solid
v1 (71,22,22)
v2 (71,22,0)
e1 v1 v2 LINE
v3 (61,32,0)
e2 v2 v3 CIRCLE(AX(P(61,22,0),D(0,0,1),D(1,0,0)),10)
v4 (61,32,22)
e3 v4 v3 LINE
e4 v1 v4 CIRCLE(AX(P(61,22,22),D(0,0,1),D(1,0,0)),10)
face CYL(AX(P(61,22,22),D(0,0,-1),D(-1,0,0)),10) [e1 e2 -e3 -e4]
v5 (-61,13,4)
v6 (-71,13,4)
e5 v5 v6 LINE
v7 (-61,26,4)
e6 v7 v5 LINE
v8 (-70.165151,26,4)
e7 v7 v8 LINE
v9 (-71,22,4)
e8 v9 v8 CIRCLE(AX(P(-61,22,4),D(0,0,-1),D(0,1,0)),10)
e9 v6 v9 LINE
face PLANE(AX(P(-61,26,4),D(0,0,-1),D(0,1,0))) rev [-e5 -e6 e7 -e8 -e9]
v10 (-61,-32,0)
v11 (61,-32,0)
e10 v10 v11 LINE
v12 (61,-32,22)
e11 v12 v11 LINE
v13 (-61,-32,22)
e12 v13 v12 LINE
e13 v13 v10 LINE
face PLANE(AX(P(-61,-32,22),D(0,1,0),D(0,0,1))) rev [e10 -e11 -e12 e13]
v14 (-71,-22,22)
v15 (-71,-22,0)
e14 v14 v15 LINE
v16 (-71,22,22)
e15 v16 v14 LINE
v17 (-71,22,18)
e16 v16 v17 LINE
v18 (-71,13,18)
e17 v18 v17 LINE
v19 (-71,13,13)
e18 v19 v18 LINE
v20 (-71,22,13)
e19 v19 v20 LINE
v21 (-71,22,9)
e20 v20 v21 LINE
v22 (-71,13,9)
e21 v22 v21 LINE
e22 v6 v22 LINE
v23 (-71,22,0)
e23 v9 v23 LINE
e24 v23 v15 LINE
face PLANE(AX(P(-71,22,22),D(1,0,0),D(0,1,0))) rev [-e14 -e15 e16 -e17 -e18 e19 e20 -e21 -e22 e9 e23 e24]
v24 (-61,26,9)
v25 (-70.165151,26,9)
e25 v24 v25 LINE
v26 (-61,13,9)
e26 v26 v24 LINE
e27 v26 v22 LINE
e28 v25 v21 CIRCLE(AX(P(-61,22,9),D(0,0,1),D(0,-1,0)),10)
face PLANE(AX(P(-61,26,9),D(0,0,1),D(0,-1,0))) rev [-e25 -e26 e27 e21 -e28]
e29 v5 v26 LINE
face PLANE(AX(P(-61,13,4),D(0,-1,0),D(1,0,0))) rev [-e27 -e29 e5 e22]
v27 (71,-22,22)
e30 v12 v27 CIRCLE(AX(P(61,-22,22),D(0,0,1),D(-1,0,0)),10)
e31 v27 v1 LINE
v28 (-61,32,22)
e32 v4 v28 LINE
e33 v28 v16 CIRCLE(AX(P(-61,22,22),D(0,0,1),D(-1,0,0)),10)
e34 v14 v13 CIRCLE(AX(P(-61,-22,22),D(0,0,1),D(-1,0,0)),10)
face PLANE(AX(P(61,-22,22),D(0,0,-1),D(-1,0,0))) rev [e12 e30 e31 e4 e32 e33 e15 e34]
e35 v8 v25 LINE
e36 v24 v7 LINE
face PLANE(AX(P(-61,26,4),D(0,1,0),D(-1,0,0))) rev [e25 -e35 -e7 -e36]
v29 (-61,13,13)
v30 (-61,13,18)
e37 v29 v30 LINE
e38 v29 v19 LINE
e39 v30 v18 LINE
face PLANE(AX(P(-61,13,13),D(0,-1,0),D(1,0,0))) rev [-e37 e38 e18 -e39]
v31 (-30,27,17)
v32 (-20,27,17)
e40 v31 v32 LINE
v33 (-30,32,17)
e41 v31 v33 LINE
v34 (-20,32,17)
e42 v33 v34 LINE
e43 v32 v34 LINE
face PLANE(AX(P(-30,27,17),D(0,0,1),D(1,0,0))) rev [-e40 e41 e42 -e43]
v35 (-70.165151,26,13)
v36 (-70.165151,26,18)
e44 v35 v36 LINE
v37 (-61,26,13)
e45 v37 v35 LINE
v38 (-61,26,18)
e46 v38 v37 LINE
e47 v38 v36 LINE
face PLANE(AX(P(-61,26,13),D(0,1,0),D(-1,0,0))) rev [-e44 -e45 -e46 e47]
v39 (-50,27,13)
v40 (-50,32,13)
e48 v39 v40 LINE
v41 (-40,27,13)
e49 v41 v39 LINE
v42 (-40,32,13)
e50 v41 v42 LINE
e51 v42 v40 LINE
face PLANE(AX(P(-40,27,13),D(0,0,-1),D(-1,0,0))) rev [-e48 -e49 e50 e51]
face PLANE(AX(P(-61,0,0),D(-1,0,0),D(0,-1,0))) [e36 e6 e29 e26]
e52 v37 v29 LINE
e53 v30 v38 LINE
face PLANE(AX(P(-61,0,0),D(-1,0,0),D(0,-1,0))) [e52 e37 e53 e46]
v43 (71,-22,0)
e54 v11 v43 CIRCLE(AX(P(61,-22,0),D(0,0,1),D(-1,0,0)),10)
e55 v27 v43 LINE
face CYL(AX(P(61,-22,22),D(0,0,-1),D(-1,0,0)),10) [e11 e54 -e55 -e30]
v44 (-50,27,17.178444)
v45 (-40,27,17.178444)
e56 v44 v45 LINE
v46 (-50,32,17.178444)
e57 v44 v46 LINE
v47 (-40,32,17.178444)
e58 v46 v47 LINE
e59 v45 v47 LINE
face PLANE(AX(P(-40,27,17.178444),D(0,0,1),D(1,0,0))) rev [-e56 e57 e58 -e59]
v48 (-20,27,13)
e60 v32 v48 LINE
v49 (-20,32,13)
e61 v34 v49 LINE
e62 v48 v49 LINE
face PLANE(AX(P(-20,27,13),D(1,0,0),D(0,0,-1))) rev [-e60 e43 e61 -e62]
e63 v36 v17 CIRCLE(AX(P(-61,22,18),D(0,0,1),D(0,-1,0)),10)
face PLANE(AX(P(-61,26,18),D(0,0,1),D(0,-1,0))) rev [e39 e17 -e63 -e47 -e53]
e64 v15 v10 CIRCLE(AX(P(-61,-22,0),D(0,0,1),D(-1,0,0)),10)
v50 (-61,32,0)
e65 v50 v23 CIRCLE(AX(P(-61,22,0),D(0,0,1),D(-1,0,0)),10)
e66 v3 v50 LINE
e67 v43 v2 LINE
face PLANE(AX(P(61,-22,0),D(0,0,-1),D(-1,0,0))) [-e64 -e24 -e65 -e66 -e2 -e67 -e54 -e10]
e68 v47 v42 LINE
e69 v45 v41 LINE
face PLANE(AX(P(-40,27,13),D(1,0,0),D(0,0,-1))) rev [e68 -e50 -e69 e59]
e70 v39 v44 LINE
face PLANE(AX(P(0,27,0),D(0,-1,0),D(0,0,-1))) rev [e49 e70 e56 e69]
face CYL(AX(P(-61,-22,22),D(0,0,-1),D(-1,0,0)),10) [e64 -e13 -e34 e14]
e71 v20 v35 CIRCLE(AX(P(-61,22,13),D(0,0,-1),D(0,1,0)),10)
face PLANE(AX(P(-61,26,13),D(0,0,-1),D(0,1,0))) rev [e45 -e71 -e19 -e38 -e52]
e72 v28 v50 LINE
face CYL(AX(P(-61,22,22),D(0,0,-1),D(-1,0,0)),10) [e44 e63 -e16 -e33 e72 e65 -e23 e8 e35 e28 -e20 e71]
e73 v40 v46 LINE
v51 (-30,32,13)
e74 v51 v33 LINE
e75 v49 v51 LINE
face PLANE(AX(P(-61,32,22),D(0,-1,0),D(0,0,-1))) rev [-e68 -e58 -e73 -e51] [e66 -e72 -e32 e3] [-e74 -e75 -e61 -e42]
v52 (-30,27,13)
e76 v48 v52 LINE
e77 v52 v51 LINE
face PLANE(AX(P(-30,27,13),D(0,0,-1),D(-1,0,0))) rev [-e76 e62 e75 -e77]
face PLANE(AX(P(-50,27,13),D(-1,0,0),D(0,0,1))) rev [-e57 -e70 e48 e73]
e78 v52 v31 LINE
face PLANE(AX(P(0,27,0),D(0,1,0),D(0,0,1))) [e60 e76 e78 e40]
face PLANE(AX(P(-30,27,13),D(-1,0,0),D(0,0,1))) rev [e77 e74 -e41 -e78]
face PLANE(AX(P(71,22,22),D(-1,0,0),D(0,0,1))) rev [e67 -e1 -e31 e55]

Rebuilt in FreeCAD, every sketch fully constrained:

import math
import FreeCAD as App
import Part
import Sketcher
from FreeCAD import Vector


def add_polygon(sketch, points):
    """Adds a closed chain of lines whose ends are joined by coincident constraints."""
    first, n = sketch.GeometryCount, len(points)
    for a, b in zip(points, points[1:] + points[:1]):
        sketch.addGeometry(Part.LineSegment(App.Vector(*a, 0), App.Vector(*b, 0)), False)
    for i in range(n):
        sketch.addConstraint(Sketcher.Constraint("Coincident", first + i, 2, first + (i + 1) % n, 1))

doc = App.newDocument("Part")
body = doc.addObject("PartDesign::Body", "Body")

# Sketch on XY plane
sketch1 = doc.addObject("Sketcher::SketchObject", "Sketch")
body.addObject(sketch1)
sketch1.AttachmentSupport = (doc.XY_Plane, [""])
sketch1.MapMode = "FlatFace"
sketch1.addGeometry(Part.LineSegment(Vector(61, 32, 0), Vector(-61, 32, 0)), False)
sketch1.addGeometry(Part.ArcOfCircle(Part.Circle(Vector(-61, 22, 0), Vector(0, 0, 1), 10), math.radians(90), math.radians(180)), False)
sketch1.addGeometry(Part.LineSegment(Vector(-71, 22, 0), Vector(-71, -22, 0)), False)
sketch1.addGeometry(Part.ArcOfCircle(Part.Circle(Vector(-61, -22, 0), Vector(0, 0, 1), 10), math.radians(180), math.radians(270)), False)
sketch1.addGeometry(Part.LineSegment(Vector(-61, -32, 0), Vector(61, -32, 0)), False)
sketch1.addGeometry(Part.ArcOfCircle(Part.Circle(Vector(61, -22, 0), Vector(0, 0, 1), 10), math.radians(-90), math.radians(0)), False)
sketch1.addGeometry(Part.LineSegment(Vector(71, -22, 0), Vector(71, 22, 0)), False)
sketch1.addGeometry(Part.ArcOfCircle(Part.Circle(Vector(61, 22, 0), Vector(0, 0, 1), 10), math.radians(0), math.radians(90)), False)
sketch1.addConstraint(Sketcher.Constraint("Tangent", 0, 2, 1, 1))
sketch1.addConstraint(Sketcher.Constraint("Tangent", 1, 2, 2, 1))
sketch1.addConstraint(Sketcher.Constraint("Tangent", 2, 2, 3, 1))
sketch1.addConstraint(Sketcher.Constraint("Tangent", 3, 2, 4, 1))
sketch1.addConstraint(Sketcher.Constraint("Tangent", 4, 2, 5, 1))
sketch1.addConstraint(Sketcher.Constraint("Tangent", 5, 2, 6, 1))
sketch1.addConstraint(Sketcher.Constraint("Tangent", 6, 2, 7, 1))
sketch1.addConstraint(Sketcher.Constraint("Tangent", 7, 2, 0, 1))
sketch1.addConstraint(Sketcher.Constraint("Horizontal", 0))
sketch1.addConstraint(Sketcher.Constraint("Vertical", 2))
sketch1.addConstraint(Sketcher.Constraint("Horizontal", 4))
sketch1.addConstraint(Sketcher.Constraint("Vertical", 6))
sketch1.addConstraint(Sketcher.Constraint("Equal", 1, 3))
sketch1.addConstraint(Sketcher.Constraint("Equal", 3, 5))
sketch1.addConstraint(Sketcher.Constraint("Equal", 5, 7))
sketch1.addConstraint(Sketcher.Constraint("Symmetric", 1, 3, 5, 3, -1, 1))
sketch1.addConstraint(Sketcher.Constraint("Radius", 1, 10.0))
sketch1.addConstraint(Sketcher.Constraint("DistanceX", 0, 2, 0, 1, 122.0))
sketch1.addConstraint(Sketcher.Constraint("DistanceY", 2, 2, 2, 1, 44.0))
pad1 = doc.addObject("PartDesign::Pad", "Pad")
body.addObject(pad1)
pad1.Profile = sketch1
pad1.Length = 22

# Sketch on YZ plane
sketch2 = doc.addObject("Sketcher::SketchObject", "Sketch001")
body.addObject(sketch2)
sketch2.AttachmentSupport = (doc.YZ_Plane, [""])
sketch2.MapMode = "FlatFace"
sketch2.AttachmentOffset = App.Placement(Vector(0, 0, -71), App.Rotation())
add_polygon(sketch2, [(26, 13), (13, 13), (13, 18), (26, 18)])  # lines 0-3
add_polygon(sketch2, [(26, 4), (13, 4), (13, 9), (26, 9)])  # lines 4-7
sketch2.addConstraint(Sketcher.Constraint("Horizontal", 0))
sketch2.addConstraint(Sketcher.Constraint("Vertical", 1))
sketch2.addConstraint(Sketcher.Constraint("Horizontal", 2))
sketch2.addConstraint(Sketcher.Constraint("Vertical", 3))
sketch2.addConstraint(Sketcher.Constraint("Horizontal", 4))
sketch2.addConstraint(Sketcher.Constraint("Vertical", 5))
sketch2.addConstraint(Sketcher.Constraint("Horizontal", 6))
sketch2.addConstraint(Sketcher.Constraint("Vertical", 7))
sketch2.addConstraint(Sketcher.Constraint("Vertical", 1, 2, 4, 2))
sketch2.addConstraint(Sketcher.Constraint("Vertical", 3, 2, 6, 2))
sketch2.addConstraint(Sketcher.Constraint("Equal", 3, 5))
sketch2.addConstraint(Sketcher.Constraint("DistanceX", 0, 2, 0, 1, 13.0))
sketch2.addConstraint(Sketcher.Constraint("DistanceY", 1, 1, 1, 2, 5.0))
sketch2.addConstraint(Sketcher.Constraint("DistanceX", -1, 1, 0, 2, 13.0))
sketch2.addConstraint(Sketcher.Constraint("DistanceY", -1, 1, 0, 2, 13.0))
sketch2.addConstraint(Sketcher.Constraint("DistanceY", -1, 1, 4, 2, 4.0))
pocket1 = doc.addObject("PartDesign::Pocket", "Pocket")
body.addObject(pocket1)
pocket1.Profile = sketch2
pocket1.Length = 10
pocket1.Reversed = True

# Sketch on XZ plane
sketch3 = doc.addObject("Sketcher::SketchObject", "Sketch002")
body.addObject(sketch3)
sketch3.AttachmentSupport = (doc.XZ_Plane, [""])
sketch3.MapMode = "FlatFace"
sketch3.AttachmentOffset = App.Placement(Vector(0, 0, -32), App.Rotation())
add_polygon(sketch3, [(-30, 13), (-30, 17), (-20, 17), (-20, 13)])  # lines 0-3
add_polygon(sketch3, [(-50, 13), (-50, 17.178444), (-40, 17.178444), (-40, 13)])  # lines 4-7
sketch3.addConstraint(Sketcher.Constraint("Vertical", 0))
sketch3.addConstraint(Sketcher.Constraint("Horizontal", 1))
sketch3.addConstraint(Sketcher.Constraint("Vertical", 2))
sketch3.addConstraint(Sketcher.Constraint("Horizontal", 3))
sketch3.addConstraint(Sketcher.Constraint("Vertical", 4))
sketch3.addConstraint(Sketcher.Constraint("Horizontal", 5))
sketch3.addConstraint(Sketcher.Constraint("Vertical", 6))
sketch3.addConstraint(Sketcher.Constraint("Horizontal", 7))
sketch3.addConstraint(Sketcher.Constraint("Horizontal", 3, 2, 6, 2))
sketch3.addConstraint(Sketcher.Constraint("Equal", 3, 5))
sketch3.addConstraint(Sketcher.Constraint("DistanceX", 1, 1, 1, 2, 10.0))
sketch3.addConstraint(Sketcher.Constraint("DistanceY", 0, 1, 0, 2, 4.0))
sketch3.addConstraint(Sketcher.Constraint("DistanceX", 0, 2, -1, 1, 30.0))
sketch3.addConstraint(Sketcher.Constraint("DistanceY", -1, 1, 0, 2, 17.0))
sketch3.addConstraint(Sketcher.Constraint("DistanceX", 4, 2, -1, 1, 50.0))
sketch3.addConstraint(Sketcher.Constraint("DistanceY", 4, 1, 4, 2, 4.178444))
pocket2 = doc.addObject("PartDesign::Pocket", "Pocket001")
body.addObject(pocket2)
pocket2.Profile = sketch3
pocket2.Length = 5
pocket2.Reversed = True

doc.recompute()
